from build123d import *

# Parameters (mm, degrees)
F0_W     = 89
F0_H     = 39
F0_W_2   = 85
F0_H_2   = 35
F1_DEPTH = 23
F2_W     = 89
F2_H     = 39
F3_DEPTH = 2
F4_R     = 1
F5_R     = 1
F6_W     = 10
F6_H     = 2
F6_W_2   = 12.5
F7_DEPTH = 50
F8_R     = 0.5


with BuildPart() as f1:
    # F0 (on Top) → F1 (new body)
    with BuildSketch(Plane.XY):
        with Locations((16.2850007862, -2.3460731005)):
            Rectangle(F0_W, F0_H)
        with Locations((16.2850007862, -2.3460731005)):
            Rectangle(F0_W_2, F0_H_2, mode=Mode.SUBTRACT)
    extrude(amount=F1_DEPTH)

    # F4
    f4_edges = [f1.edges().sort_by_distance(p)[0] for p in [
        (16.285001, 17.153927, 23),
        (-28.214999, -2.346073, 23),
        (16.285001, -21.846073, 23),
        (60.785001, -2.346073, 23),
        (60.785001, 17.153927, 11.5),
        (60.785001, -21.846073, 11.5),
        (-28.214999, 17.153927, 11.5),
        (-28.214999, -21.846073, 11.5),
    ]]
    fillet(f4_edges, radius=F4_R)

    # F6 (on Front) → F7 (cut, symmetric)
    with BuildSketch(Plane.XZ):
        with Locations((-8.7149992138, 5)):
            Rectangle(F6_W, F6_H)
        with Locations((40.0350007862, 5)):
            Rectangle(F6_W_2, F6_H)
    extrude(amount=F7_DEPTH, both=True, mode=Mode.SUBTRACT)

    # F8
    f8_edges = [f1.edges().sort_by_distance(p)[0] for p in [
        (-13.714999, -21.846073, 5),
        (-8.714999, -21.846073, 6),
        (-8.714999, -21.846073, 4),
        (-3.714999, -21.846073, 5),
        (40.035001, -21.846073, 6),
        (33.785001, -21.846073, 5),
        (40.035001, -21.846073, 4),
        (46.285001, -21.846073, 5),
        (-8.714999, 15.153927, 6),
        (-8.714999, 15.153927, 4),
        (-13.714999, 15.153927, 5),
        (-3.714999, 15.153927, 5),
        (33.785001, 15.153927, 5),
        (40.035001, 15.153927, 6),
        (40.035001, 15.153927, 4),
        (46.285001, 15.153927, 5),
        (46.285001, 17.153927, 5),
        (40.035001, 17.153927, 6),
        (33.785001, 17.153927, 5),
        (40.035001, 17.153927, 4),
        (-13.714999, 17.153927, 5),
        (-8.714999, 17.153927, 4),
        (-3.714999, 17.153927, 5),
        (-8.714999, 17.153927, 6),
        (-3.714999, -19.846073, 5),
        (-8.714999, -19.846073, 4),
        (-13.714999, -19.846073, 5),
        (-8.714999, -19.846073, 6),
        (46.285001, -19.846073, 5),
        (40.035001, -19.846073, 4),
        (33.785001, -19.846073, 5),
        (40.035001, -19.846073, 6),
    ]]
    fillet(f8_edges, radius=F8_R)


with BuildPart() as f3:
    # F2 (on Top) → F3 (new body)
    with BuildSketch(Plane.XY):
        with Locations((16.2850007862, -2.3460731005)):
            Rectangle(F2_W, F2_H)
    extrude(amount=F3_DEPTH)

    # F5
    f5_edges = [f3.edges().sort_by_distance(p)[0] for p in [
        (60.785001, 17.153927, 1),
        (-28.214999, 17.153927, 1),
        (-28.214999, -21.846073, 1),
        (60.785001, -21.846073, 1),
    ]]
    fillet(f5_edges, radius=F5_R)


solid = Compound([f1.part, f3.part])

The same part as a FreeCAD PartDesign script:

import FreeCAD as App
import Part
import Sketcher
Q = App.Units.Quantity


def edges_at(feature, points):
    """Names of the edges that pass closest to the given points."""
    edges = feature.Shape.Edges
    near = lambda p: min(range(len(edges)), key=lambda i: edges[i].distToShape(Part.Vertex(*p))[0])
    return sorted({f"Edge{near(p) + 1}" for p in points})


def add_polygon(sketch, points):
    """Adds a closed chain of lines whose ends are joined by coincident constraints."""
    first, n = sketch.GeometryCount, len(points)
    for a, b in zip(points, points[1:] + points[:1]):
        sketch.addGeometry(Part.LineSegment(App.Vector(*a, 0), App.Vector(*b, 0)), False)
    for i in range(n):
        sketch.addConstraint(Sketcher.Constraint("Coincident", first + i, 2, first + (i + 1) % n, 1))

doc = App.newDocument("Part")
params = doc.addObject("Spreadsheet::Sheet", "Params")
for row, (alias, value) in enumerate([
    ("sketch1_width", "89 mm"),
    ("sketch1_width2", "85 mm"),
    ("sketch1_height", "39 mm"),
    ("sketch1_height2", "35 mm"),
    ("pad1_length", "23 mm"),
    ("fillet_radius", "1 mm"),
    ("sketch2_width", "10 mm"),
    ("sketch2_height", "2 mm"),
    ("sketch2_width2", "12.5 mm"),
    ("pocket1_length", "100 mm"),
    ("fillet2_radius", "0.5 mm"),
    ("sketch3_width", "89 mm"),
    ("sketch3_height", "39 mm"),
    ("pad2_length", "2 mm"),
    ("fillet3_radius", "1 mm"),
], start=1):
    params.set(f"A{row}", alias)
    params.set(f"B{row}", "=" + value)
    params.setAlias(f"B{row}", alias)

body = doc.addObject("PartDesign::Body", "Body")

# Sketch on XY plane
sketch1 = doc.addObject("Sketcher::SketchObject", "Sketch")
body.addObject(sketch1)
sketch1.AttachmentSupport = (doc.XY_Plane, [""])
sketch1.MapMode = "FlatFace"
add_polygon(sketch1, [(-28, 17), (-28, -22), (61, -22), (61, 17)])  # lines 0-3
add_polygon(sketch1, [(59, -20), (-26, -20), (-26, 15), (59, 15)])  # lines 4-7
sketch1.addConstraint([
    Sketcher.Constraint("Vertical", 0),
    Sketcher.Constraint("Horizontal", 1),
    Sketcher.Constraint("Vertical", 2),
    Sketcher.Constraint("Horizontal", 3),
    Sketcher.Constraint("Horizontal", 4),
    Sketcher.Constraint("Vertical", 5),
    Sketcher.Constraint("Horizontal", 6),
    Sketcher.Constraint("Vertical", 7),
    Sketcher.Constraint("DistanceX", 1, 1, 1, 2, Q("89 mm")),
    Sketcher.Constraint("DistanceX", 4, 2, 4, 1, Q("85 mm")),
    Sketcher.Constraint("DistanceY", 0, 2, 0, 1, Q("39 mm")),
    Sketcher.Constraint("DistanceY", 5, 1, 5, 2, Q("35 mm")),
    Sketcher.Constraint("DistanceX", 0, 2, 4, 2, Q("2 mm")),
    Sketcher.Constraint("DistanceY", 0, 2, 4, 2, Q("2 mm")),
    Sketcher.Constraint("DistanceX", 0, 2, -1, 1, Q("28.214999 mm")),
    Sketcher.Constraint("DistanceY", 0, 2, -1, 1, Q("21.846073 mm")),
])
sketch1.setExpression("Constraints[16]", "Params.sketch1_width")
sketch1.setExpression("Constraints[17]", "Params.sketch1_width2")
sketch1.setExpression("Constraints[18]", "Params.sketch1_height")
sketch1.setExpression("Constraints[19]", "Params.sketch1_height2")
pad1 = doc.addObject("PartDesign::Pad", "Pad")
body.addObject(pad1)
pad1.Profile = sketch1
pad1.setExpression("Length", "Params.pad1_length")
doc.recompute()

fillet = doc.addObject("PartDesign::Fillet", "Fillet")
body.addObject(fillet)
fillet.Base = (pad1, edges_at(pad1, [
    (16.285, 17.154, 23),
    (-28.215, -2.346, 23),
    (16.285, -21.846, 23),
    (60.785, -2.346, 23),
    (60.785, 17.154, 11.5),
    (60.785, -21.846, 11.5),
    (-28.215, 17.154, 11.5),
    (-28.215, -21.846, 11.5),
]))
fillet.setExpression("Radius", "Params.fillet_radius")

# Sketch on XZ plane
sketch2 = doc.addObject("Sketcher::SketchObject", "Sketch001")
body.addObject(sketch2)
sketch2.AttachmentSupport = (doc.XZ_Plane, [""])
sketch2.MapMode = "FlatFace"
add_polygon(sketch2, [(-13.7, 6), (-13.7, 4), (-3.7, 4), (-3.7, 6)])  # lines 0-3
add_polygon(sketch2, [(33.8, 6), (33.8, 4), (46.3, 4), (46.3, 6)])  # lines 4-7
sketch2.addConstraint([
    Sketcher.Constraint("Vertical", 0),
    Sketcher.Constraint("Horizontal", 1),
    Sketcher.Constraint("Vertical", 2),
    Sketcher.Constraint("Horizontal", 3),
    Sketcher.Constraint("Vertical", 4),
    Sketcher.Constraint("Horizontal", 5),
    Sketcher.Constraint("Vertical", 6),
    Sketcher.Constraint("Horizontal", 7),
    Sketcher.Constraint("Horizontal", 1, 2, 4, 2),
    Sketcher.Constraint("Horizontal", 3, 2, 6, 2),
    Sketcher.Constraint("DistanceX", 1, 1, 1, 2, Q("10 mm")),
    Sketcher.Constraint("DistanceY", 0, 2, 0, 1, Q("2 mm")),
    Sketcher.Constraint("DistanceX", 5, 1, 5, 2, Q("12.5 mm")),
    Sketcher.Constraint("DistanceY", -1, 1, 0, 2, Q("4 mm")),
    Sketcher.Constraint("DistanceX", 1, 2, 5, 2, Q("50 mm")),
    Sketcher.Constraint("DistanceX", 0, 2, -1, 1, Q("13.714999 mm")),
])
sketch2.setExpression("Constraints[18]", "Params.sketch2_width")
sketch2.setExpression("Constraints[19]", "Params.sketch2_height")
sketch2.setExpression("Constraints[20]", "Params.sketch2_width2")
pocket1 = doc.addObject("PartDesign::Pocket", "Pocket")
body.addObject(pocket1)
pocket1.Profile = sketch2
pocket1.setExpression("Length", "Params.pocket1_length")
pocket1.Midplane = True
doc.recompute()

fillet2 = doc.addObject("PartDesign::Fillet", "Fillet001")
body.addObject(fillet2)
fillet2.Base = (pocket1, edges_at(pocket1, [
    (-13.715, -21.846, 5),
    (-8.715, -21.846, 6),
    (-8.715, -21.846, 4),
    (-3.715, -21.846, 5),
    (40.035, -21.846, 6),
    (33.785, -21.846, 5),
    (40.035, -21.846, 4),
    (46.285, -21.846, 5),
    (-8.715, 15.154, 6),
    (-8.715, 15.154, 4),
    (-13.715, 15.154, 5),
    (-3.715, 15.154, 5),
    (33.785, 15.154, 5),
    (40.035, 15.154, 6),
    (40.035, 15.154, 4),
    (46.285, 15.154, 5),
    (46.285, 17.154, 5),
    (40.035, 17.154, 6),
    (33.785, 17.154, 5),
    (40.035, 17.154, 4),
    (-13.715, 17.154, 5),
    (-8.715, 17.154, 4),
    (-3.715, 17.154, 5),
    (-8.715, 17.154, 6),
    (-3.715, -19.846, 5),
    (-8.715, -19.846, 4),
    (-13.715, -19.846, 5),
    (-8.715, -19.846, 6),
    (46.285, -19.846, 5),
    (40.035, -19.846, 4),
    (33.785, -19.846, 5),
    (40.035, -19.846, 6),
]))
fillet2.setExpression("Radius", "Params.fillet2_radius")
body2 = doc.addObject("PartDesign::Body", "Body001")

# Sketch on XY plane
sketch3 = doc.addObject("Sketcher::SketchObject", "Sketch002")
body2.addObject(sketch3)
sketch3.AttachmentSupport = (doc.getObject("XY_Plane001"), [""])
sketch3.MapMode = "FlatFace"
add_polygon(sketch3, [(-28, 17), (-28, -22), (61, -22), (61, 17)])  # lines 0-3
sketch3.addConstraint([
    Sketcher.Constraint("Vertical", 0),
    Sketcher.Constraint("Horizontal", 1),
    Sketcher.Constraint("Vertical", 2),
    Sketcher.Constraint("Horizontal", 3),
    Sketcher.Constraint("DistanceX", 1, 1, 1, 2, Q("89 mm")),
    Sketcher.Constraint("DistanceY", 0, 2, 0, 1, Q("39 mm")),
    Sketcher.Constraint("DistanceX", 0, 2, -1, 1, Q("28.214999 mm")),
    Sketcher.Constraint("DistanceY", 0, 2, -1, 1, Q("21.846073 mm")),
])
sketch3.setExpression("Constraints[8]", "Params.sketch3_width")
sketch3.setExpression("Constraints[9]", "Params.sketch3_height")
pad2 = doc.addObject("PartDesign::Pad", "Pad001")
body2.addObject(pad2)
pad2.Profile = sketch3
pad2.setExpression("Length", "Params.pad2_length")
doc.recompute()

fillet3 = doc.addObject("PartDesign::Fillet", "Fillet002")
body2.addObject(fillet3)
fillet3.Base = (pad2, edges_at(pad2, [
    (60.785, 17.154, 1),
    (-28.215, 17.154, 1),
    (-28.215, -21.846, 1),
    (60.785, -21.846, 1),
]))
fillet3.setExpression("Radius", "Params.fillet3_radius")

doc.recompute()
